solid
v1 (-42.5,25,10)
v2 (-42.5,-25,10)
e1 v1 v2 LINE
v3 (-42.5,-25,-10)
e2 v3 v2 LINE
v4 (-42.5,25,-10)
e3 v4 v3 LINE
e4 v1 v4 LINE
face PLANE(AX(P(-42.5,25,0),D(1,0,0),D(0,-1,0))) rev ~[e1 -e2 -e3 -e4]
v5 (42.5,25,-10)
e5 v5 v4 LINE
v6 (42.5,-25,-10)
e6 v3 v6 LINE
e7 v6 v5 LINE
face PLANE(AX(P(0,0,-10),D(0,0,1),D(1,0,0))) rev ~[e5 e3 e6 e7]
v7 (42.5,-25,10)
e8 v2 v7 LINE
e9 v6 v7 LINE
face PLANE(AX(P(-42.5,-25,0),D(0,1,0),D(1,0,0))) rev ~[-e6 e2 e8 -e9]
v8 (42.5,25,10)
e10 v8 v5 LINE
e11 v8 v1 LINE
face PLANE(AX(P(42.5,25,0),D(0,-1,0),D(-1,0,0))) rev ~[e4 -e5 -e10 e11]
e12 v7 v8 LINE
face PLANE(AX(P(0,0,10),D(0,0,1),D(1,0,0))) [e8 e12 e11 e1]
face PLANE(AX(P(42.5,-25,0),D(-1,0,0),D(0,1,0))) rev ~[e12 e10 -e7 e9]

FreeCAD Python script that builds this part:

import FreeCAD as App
import Part
import Sketcher
from FreeCAD import Vector


def add_polygon(sketch, points):
    """Adds a closed chain of lines whose ends are joined by coincident constraints."""
    first, n = sketch.GeometryCount, len(points)
    for a, b in zip(points, points[1:] + points[:1]):
        sketch.addGeometry(Part.LineSegment(App.Vector(*a, 0), App.Vector(*b, 0)), False)
    for i in range(n):
        sketch.addConstraint(Sketcher.Constraint("Coincident", first + i, 2, first + (i + 1) % n, 1))

doc = App.newDocument("Part")
body = doc.addObject("PartDesign::Body", "Body")

sketch1 = doc.addObject("Sketcher::SketchObject", "Sketch")
body.addObject(sketch1)
sketch1.AttachmentSupport = (doc.XY_Plane, [""])
sketch1.MapMode = "FlatFace"
add_polygon(sketch1, [(-42, 25), (-42, -25), (42, -25), (42, 25)])
sketch1.addConstraint([
    Sketcher.Constraint("Vertical", 0),
    Sketcher.Constraint("Horizontal", 1),
    Sketcher.Constraint("Vertical", 2),
    Sketcher.Constraint("Horizontal", 3),
    Sketcher.Constraint("Symmetric", 0, 2, 2, 2, -1, 1),
    Sketcher.Constraint("DistanceX", 1, 1, 1, 2, 85.0),
    Sketcher.Constraint("DistanceY", 0, 2, 0, 1, 50.0),
])
pad1 = doc.addObject("PartDesign::Pad", "Pad")
body.addObject(pad1)
pad1.Profile = sketch1
pad1.Length = 20
pad1.Midplane = True

doc.recompute()
